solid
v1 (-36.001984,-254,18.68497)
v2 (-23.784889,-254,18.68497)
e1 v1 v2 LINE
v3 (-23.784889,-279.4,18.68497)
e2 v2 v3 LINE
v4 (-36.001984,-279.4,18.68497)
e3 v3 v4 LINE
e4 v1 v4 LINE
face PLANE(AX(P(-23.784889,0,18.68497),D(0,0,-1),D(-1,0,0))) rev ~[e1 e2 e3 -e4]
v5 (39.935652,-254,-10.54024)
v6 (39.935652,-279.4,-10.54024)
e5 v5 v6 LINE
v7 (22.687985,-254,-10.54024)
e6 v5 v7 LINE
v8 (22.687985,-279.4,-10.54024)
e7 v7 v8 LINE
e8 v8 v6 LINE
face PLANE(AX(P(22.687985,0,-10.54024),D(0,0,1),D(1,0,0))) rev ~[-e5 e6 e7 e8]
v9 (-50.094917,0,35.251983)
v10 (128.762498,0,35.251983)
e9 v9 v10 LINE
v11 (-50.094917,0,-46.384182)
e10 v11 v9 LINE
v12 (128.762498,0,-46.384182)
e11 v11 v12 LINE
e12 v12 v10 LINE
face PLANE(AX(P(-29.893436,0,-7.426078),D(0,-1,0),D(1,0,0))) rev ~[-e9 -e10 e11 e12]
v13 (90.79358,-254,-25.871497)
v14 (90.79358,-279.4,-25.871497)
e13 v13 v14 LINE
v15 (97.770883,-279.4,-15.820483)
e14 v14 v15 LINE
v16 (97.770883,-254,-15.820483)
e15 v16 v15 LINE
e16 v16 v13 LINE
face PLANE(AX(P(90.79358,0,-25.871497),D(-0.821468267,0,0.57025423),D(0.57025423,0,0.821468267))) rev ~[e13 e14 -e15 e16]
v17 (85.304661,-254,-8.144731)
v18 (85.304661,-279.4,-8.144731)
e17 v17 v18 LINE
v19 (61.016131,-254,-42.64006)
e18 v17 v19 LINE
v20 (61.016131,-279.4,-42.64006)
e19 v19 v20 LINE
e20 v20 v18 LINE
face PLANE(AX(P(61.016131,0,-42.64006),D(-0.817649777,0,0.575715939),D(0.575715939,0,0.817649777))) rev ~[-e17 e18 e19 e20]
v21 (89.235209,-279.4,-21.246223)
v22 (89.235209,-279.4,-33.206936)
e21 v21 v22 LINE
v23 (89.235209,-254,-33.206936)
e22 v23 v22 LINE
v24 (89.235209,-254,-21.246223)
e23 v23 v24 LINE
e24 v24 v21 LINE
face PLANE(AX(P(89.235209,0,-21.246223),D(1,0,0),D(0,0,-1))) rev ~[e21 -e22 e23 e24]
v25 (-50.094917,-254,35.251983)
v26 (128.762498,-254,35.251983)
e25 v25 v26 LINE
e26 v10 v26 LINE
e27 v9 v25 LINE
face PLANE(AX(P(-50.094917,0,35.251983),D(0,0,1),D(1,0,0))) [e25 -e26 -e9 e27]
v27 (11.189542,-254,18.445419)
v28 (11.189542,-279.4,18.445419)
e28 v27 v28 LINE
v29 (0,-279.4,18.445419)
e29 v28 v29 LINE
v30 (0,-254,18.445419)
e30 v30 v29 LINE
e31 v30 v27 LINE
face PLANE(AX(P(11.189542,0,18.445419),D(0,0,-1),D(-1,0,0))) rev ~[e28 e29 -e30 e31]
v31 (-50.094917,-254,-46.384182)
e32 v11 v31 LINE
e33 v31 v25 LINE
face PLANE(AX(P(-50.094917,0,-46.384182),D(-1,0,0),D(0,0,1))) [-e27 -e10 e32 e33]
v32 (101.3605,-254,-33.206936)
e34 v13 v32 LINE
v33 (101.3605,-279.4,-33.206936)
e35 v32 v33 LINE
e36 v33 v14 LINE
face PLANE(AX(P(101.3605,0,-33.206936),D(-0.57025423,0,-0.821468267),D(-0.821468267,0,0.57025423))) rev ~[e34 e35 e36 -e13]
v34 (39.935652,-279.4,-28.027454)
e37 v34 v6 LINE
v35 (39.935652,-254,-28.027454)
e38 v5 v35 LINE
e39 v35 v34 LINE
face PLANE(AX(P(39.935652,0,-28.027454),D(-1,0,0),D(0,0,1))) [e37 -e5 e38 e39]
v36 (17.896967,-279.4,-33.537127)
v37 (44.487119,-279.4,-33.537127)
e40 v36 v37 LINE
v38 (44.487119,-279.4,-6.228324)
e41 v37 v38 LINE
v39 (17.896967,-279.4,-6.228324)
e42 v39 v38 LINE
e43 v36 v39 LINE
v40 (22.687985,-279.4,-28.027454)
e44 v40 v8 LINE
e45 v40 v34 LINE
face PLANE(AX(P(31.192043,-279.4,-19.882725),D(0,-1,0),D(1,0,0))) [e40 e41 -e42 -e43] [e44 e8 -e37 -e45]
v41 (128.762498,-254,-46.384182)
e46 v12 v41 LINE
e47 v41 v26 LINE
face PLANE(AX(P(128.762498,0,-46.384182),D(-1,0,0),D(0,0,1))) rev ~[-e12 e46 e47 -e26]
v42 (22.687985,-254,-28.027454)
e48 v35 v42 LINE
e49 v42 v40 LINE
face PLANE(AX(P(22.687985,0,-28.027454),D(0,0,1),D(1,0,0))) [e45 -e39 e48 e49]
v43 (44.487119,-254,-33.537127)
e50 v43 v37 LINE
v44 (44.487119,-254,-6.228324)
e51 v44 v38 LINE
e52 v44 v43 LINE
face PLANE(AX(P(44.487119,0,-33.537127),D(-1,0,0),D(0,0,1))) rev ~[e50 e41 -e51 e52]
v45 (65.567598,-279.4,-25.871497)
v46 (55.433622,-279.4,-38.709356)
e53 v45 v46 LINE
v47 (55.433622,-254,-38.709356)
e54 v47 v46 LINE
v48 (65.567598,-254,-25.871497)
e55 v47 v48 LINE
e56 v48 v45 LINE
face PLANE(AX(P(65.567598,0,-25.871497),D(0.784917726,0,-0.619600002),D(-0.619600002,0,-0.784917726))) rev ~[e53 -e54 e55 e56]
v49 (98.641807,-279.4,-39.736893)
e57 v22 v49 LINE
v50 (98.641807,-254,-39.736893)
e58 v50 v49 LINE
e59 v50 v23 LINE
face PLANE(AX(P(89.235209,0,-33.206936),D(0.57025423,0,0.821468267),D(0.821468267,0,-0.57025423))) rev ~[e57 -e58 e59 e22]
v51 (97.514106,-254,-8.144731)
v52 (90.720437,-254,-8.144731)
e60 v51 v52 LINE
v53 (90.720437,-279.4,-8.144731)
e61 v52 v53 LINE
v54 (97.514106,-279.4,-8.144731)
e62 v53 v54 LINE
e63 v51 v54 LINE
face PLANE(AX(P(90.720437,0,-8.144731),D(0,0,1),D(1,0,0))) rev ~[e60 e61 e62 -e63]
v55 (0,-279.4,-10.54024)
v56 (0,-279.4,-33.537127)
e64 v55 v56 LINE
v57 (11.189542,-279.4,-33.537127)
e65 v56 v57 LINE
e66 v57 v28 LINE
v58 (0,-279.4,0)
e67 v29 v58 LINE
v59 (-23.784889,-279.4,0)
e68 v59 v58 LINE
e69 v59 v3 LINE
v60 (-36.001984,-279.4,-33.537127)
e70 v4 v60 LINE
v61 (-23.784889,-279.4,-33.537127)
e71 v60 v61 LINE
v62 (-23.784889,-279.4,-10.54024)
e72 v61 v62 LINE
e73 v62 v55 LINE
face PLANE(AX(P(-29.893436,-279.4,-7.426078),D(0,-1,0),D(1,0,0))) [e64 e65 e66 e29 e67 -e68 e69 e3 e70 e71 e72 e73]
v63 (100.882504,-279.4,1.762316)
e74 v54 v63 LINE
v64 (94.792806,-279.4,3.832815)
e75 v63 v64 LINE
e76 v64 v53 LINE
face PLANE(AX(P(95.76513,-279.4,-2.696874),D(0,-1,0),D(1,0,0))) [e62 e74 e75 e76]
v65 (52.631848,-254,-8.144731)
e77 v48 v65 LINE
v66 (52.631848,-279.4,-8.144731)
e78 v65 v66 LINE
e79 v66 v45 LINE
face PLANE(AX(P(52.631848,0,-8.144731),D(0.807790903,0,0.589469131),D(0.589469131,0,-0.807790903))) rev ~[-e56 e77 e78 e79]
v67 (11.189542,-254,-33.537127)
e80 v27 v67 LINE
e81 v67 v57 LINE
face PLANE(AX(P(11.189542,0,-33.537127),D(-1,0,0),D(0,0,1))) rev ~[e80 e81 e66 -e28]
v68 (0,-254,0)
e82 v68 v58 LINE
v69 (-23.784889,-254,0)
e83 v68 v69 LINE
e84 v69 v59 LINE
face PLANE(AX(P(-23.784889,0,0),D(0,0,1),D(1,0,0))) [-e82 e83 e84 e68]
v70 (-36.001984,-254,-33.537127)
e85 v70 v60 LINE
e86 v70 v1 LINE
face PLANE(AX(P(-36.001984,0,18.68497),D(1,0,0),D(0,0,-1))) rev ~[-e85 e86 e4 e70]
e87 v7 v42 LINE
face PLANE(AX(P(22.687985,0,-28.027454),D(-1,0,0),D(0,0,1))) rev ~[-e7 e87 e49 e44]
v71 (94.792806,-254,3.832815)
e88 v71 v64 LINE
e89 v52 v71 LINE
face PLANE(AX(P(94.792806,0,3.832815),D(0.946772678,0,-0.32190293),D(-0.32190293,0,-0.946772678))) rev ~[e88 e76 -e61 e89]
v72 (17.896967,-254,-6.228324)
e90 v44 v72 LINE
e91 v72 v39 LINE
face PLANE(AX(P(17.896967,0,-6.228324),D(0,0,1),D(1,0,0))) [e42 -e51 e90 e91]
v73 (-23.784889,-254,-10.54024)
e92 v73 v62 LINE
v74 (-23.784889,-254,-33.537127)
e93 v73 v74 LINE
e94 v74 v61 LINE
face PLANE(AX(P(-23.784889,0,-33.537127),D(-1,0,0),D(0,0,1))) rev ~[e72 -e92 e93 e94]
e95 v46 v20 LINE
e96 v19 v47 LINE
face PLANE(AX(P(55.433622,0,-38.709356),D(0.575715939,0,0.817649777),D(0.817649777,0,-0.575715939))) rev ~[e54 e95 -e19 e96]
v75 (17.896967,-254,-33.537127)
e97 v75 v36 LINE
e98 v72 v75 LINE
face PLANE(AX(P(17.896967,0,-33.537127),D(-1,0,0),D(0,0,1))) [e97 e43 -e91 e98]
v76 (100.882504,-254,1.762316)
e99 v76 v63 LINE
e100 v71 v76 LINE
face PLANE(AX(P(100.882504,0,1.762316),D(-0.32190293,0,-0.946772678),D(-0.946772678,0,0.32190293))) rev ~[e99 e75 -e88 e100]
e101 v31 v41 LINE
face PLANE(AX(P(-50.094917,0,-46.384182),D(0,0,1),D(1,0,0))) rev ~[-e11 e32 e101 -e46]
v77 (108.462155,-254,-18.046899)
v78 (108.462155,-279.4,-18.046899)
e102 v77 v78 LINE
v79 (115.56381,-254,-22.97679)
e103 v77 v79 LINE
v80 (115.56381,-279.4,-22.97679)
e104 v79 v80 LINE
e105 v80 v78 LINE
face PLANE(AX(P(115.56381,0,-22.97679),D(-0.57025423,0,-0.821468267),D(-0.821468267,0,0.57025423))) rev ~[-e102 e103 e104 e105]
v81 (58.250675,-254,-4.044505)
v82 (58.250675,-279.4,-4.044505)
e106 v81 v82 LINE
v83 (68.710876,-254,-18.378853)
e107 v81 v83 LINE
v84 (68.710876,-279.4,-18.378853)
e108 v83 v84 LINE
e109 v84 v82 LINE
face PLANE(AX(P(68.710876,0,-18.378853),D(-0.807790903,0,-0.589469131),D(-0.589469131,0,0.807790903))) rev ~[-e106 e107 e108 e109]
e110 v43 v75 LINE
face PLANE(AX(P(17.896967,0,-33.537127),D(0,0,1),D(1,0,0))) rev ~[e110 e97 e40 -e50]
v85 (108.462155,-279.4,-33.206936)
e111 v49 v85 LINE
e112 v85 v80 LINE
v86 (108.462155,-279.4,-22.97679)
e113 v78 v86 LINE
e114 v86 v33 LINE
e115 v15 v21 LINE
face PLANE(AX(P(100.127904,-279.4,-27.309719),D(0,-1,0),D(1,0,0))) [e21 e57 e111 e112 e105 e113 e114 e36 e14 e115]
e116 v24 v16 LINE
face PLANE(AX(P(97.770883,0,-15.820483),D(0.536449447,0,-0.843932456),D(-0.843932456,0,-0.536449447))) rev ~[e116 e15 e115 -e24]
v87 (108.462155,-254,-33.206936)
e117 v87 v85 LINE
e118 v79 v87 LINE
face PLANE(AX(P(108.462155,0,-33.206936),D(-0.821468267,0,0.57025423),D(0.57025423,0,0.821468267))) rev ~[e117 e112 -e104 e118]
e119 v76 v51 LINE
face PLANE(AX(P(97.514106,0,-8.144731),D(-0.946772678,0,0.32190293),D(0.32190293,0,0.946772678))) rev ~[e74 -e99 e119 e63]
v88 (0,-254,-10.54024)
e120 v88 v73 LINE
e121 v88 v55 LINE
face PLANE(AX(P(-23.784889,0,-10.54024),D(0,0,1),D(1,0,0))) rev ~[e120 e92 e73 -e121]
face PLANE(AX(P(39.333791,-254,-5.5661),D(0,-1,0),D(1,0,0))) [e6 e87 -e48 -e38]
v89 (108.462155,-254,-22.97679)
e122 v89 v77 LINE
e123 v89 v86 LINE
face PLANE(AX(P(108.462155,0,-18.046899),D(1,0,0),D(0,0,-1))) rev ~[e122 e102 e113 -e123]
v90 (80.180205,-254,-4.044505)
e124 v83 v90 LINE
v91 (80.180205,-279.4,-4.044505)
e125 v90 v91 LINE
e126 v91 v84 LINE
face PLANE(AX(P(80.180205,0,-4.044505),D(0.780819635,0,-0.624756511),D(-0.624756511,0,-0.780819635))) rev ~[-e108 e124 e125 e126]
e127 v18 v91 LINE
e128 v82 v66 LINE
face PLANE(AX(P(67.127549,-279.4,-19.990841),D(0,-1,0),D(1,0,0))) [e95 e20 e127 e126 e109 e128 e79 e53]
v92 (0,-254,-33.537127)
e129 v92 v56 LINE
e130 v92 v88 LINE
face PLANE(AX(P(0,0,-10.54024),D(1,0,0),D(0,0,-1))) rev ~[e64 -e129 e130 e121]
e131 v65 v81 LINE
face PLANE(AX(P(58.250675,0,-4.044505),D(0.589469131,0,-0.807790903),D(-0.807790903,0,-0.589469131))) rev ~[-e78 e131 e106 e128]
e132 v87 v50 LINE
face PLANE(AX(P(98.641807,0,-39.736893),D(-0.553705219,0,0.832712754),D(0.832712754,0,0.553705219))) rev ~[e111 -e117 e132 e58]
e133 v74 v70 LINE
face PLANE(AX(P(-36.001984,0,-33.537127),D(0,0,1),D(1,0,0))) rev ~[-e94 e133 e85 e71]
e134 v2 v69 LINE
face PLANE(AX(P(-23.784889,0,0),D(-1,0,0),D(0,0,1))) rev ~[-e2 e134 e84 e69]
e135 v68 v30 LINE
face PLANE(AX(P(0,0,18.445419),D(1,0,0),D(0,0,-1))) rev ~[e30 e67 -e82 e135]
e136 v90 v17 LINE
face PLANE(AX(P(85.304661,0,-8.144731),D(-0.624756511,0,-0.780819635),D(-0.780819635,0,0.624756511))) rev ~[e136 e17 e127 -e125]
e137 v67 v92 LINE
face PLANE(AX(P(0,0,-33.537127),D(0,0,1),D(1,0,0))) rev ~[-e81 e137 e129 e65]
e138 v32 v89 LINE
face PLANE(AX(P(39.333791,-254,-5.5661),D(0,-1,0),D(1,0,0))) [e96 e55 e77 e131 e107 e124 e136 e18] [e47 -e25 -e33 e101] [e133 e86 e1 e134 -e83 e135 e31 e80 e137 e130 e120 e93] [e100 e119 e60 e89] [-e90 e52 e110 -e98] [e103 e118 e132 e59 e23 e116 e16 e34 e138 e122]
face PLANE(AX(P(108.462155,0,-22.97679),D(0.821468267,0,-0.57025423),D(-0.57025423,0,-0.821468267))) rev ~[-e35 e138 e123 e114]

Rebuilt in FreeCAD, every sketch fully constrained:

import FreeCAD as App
import Part
import Sketcher

V = App.Vector
Q = App.Units.Quantity


def add_polygon(sketch, points):
    """Adds a closed chain of lines whose ends are joined by coincident constraints."""
    first, n = sketch.GeometryCount, len(points)
    for a, b in zip(points, points[1:] + points[:1]):
        sketch.addGeometry(Part.LineSegment(App.Vector(*a, 0), App.Vector(*b, 0)), False)
    for i in range(n):
        sketch.addConstraint(Sketcher.Constraint("Coincident", first + i, 2, first + (i + 1) % n, 1))

doc = App.newDocument("Part")
params = doc.addObject("Spreadsheet::Sheet", "Params")
for row, (alias, value) in enumerate([
    ("pad1_length", "10 in"),
    ("pad2_length", "11 in"),
], start=1):
    params.set(f"A{row}", alias)
    params.set(f"B{row}", "=" + value)
    params.setAlias(f"B{row}", alias)

body = doc.addObject("PartDesign::Body", "Body")

sketch1 = body.newObject("Sketcher::SketchObject", "Sketch")
sketch1.AttachmentSupport = (doc.getObject("XZ_Plane"), [""])
sketch1.MapMode = "FlatFace"
add_polygon(sketch1, [(-50, 35), (-50, -46), (129, -46), (129, 35)])
sketch1.addConstraint(Sketcher.Constraint("Vertical", 0))
sketch1.addConstraint(Sketcher.Constraint("Horizontal", 1))
sketch1.addConstraint(Sketcher.Constraint("Vertical", 2))
sketch1.addConstraint(Sketcher.Constraint("Horizontal", 3))
sketch1.addConstraint(Sketcher.Constraint("DistanceX", -1, 1, 1, 2, Q("128.762498 mm")))
sketch1.addConstraint(Sketcher.Constraint("DistanceX", 1, 1, 1, 2, Q("178.857416 mm")))
sketch1.addConstraint(Sketcher.Constraint("DistanceY", 0, 2, 0, 1, Q("81.636164 mm")))
sketch1.addConstraint(Sketcher.Constraint("DistanceY", 0, 2, -1, 1, Q("46.384182 mm")))
pad1 = body.newObject("PartDesign::Pad", "Pad")
pad1.Profile = sketch1
pad1.setExpression("Length", "Params.pad1_length")

sketch2 = body.newObject("Sketcher::SketchObject", "Sketch001")
sketch2.AttachmentSupport = (doc.getObject("XZ_Plane"), [""])
sketch2.MapMode = "FlatFace"
add_polygon(sketch2, [(-23.8, 18.7), (-36, 18.7), (-36, -33.5), (-23.8, -33.5), (-23.8, -10.5), (0, -10.5), (0, -33.5), (11.2, -33.5), (11.2, 18.4), (0, 18.4), (0, 0), (-23.8, 0)])
add_polygon(sketch2, [(17.9, -6.2), (17.9, -33.5), (44.5, -33.5), (44.5, -6.2)])
add_polygon(sketch2, [(39.9, -28), (22.7, -28), (22.7, -10.5), (39.9, -10.5)])
add_polygon(sketch2, [(58.3, -4), (52.6, -8.1), (65.6, -25.9), (55.4, -38.7), (61, -42.6), (85.3, -8.1), (80.2, -4), (68.7, -18.4)])
add_polygon(sketch2, [(100.9, 1.8), (94.8, 3.8), (90.7, -8.1), (97.5, -8.1)])
add_polygon(sketch2, [(97.8, -15.8), (89.2, -21.2), (89.2, -33.2), (98.6, -39.7), (108.5, -33.2), (115.6, -23), (108.5, -18), (108.5, -23), (101.4, -33.2), (90.8, -25.9)])
sketch2.addConstraint(Sketcher.Constraint("Horizontal", 0))
sketch2.addConstraint(Sketcher.Constraint("Vertical", 1))
sketch2.addConstraint(Sketcher.Constraint("Horizontal", 2))
sketch2.addConstraint(Sketcher.Constraint("Vertical", 3))
sketch2.addConstraint(Sketcher.Constraint("Horizontal", 4))
sketch2.addConstraint(Sketcher.Constraint("Vertical", 5))
sketch2.addConstraint(Sketcher.Constraint("Horizontal", 6))
sketch2.addConstraint(Sketcher.Constraint("Vertical", 7))
sketch2.addConstraint(Sketcher.Constraint("Horizontal", 8))
sketch2.addConstraint(Sketcher.Constraint("Vertical", 9))
sketch2.addConstraint(Sketcher.Constraint("Horizontal", 10))
sketch2.addConstraint(Sketcher.Constraint("Vertical", 11))
sketch2.addConstraint(Sketcher.Constraint("Vertical", 12))
sketch2.addConstraint(Sketcher.Constraint("Horizontal", 13))
sketch2.addConstraint(Sketcher.Constraint("Vertical", 14))
sketch2.addConstraint(Sketcher.Constraint("Horizontal", 15))
sketch2.addConstraint(Sketcher.Constraint("Horizontal", 16))
sketch2.addConstraint(Sketcher.Constraint("Vertical", 17))
sketch2.addConstraint(Sketcher.Constraint("Horizontal", 18))
sketch2.addConstraint(Sketcher.Constraint("Vertical", 19))
sketch2.addConstraint(Sketcher.Constraint("Horizontal", 30))
sketch2.addConstraint(Sketcher.Constraint("Vertical", 33))
sketch2.addConstraint(Sketcher.Constraint("Vertical", 38))
sketch2.addConstraint(Sketcher.Constraint("Coincident", 9, 2, -1, 1))
sketch2.addConstraint(Sketcher.Constraint("PointOnObject", 4, 2, -2))
sketch2.addConstraint(Sketcher.Constraint("Perpendicular", 20, 21))
sketch2.addConstraint(Sketcher.Constraint("Perpendicular", 23, 24))
sketch2.addConstraint(Sketcher.Constraint("Perpendicular", 25, 26))
sketch2.addConstraint(Sketcher.Constraint("Parallel", 21, 27))
sketch2.addConstraint(Sketcher.Constraint("Perpendicular", 28, 29))
sketch2.addConstraint(Sketcher.Constraint("Parallel", 29, 31))
sketch2.addConstraint(Sketcher.Constraint("Perpendicular", 34, 36))
sketch2.addConstraint(Sketcher.Constraint("Perpendicular", 36, 37))
sketch2.addConstraint(Sketcher.Constraint("Perpendicular", 37, 39))
sketch2.addConstraint(Sketcher.Constraint("Perpendicular", 39, 40))
sketch2.addConstraint(Sketcher.Constraint("Perpendicular", 40, 41))
sketch2.addConstraint(Sketcher.Constraint("Horizontal", 2, 2, 5, 2))
sketch2.addConstraint(Sketcher.Constraint("Horizontal", 6, 2, 12, 2))
sketch2.addConstraint(Sketcher.Constraint("Horizontal", 4, 2, 17, 2))
sketch2.addConstraint(Sketcher.Constraint("Horizontal", 20, 2, 24, 2))
sketch2.addConstraint(Sketcher.Constraint("Horizontal", 25, 2, 27, 2))
sketch2.addConstraint(Sketcher.Constraint("Horizontal", 24, 2, 29, 2))
sketch2.addConstraint(Sketcher.Constraint("Horizontal", 33, 2, 35, 2))
sketch2.addConstraint(Sketcher.Constraint("Horizontal", 36, 2, 38, 2))
sketch2.addConstraint(Sketcher.Constraint("Horizontal", 35, 2, 39, 2))
sketch2.addConstraint(Sketcher.Constraint("Horizontal", 21, 2, 40, 2))
sketch2.addConstraint(Sketcher.Constraint("Vertical", 3, 2, 10, 2))
sketch2.addConstraint(Sketcher.Constraint("Vertical", 35, 2, 37, 2))
sketch2.addConstraint(Sketcher.Constraint("Distance", 35, Q("11.7932 mm")))
sketch2.addConstraint(Sketcher.Constraint("DistanceX", 4, 1, 4, 2, Q("23.784889 mm")))
sketch2.addConstraint(Sketcher.Constraint("DistanceX", 6, 1, 6, 2, Q("11.189542 mm")))
sketch2.addConstraint(Sketcher.Constraint("DistanceX", 13, 1, 13, 2, Q("26.590152 mm")))
sketch2.addConstraint(Sketcher.Constraint("DistanceX", 30, 1, 30, 2, Q("6.793668 mm")))
sketch2.addConstraint(Sketcher.Constraint("DistanceY", 9, 2, 9, 1, Q("18.445419 mm")))
sketch2.addConstraint(Sketcher.Constraint("DistanceY", 11, 1, 11, 2, Q("18.68497 mm")))
sketch2.addConstraint(Sketcher.Constraint("DistanceY", 38, 2, 38, 1, Q("4.929891 mm")))
sketch2.addConstraint(Sketcher.Constraint("DistanceY", 37, 2, -1, 1, Q("18.046899 mm")))
sketch2.addConstraint(Sketcher.Constraint("DistanceX", -1, 1, 39, 2, Q("101.3605 mm")))
sketch2.addConstraint(Sketcher.Constraint("DistanceY", 22, 2, 19, 2, Q("10.681901 mm")))
sketch2.addConstraint(Sketcher.Constraint("DistanceX", 27, 2, 26, 2, Q("10.460202 mm")))
sketch2.addConstraint(Sketcher.Constraint("DistanceX", 25, 2, 28, 2, Q("14.6126 mm")))
sketch2.addConstraint(Sketcher.Constraint("DistanceX", 28, 2, 30, 2, Q("2.7213 mm")))
sketch2.addConstraint(Sketcher.Constraint("DistanceX", 28, 2, 31, 2, Q("6.089698 mm")))
sketch2.addConstraint(Sketcher.Constraint("DistanceX", 30, 2, 34, 2, Q("1.127701 mm")))
sketch2.addConstraint(Sketcher.Constraint("DistanceX", 32, 2, 36, 2, Q("26.328601 mm")))
sketch2.addConstraint(Sketcher.Constraint("Distance", 25, Q("6.562918 mm")))
sketch2.addConstraint(Sketcher.Constraint("Distance", 26, Q("18.358078 mm")))
sketch2.addConstraint(Sketcher.Constraint("Distance", 27, Q("17.745122 mm")))
sketch2.addConstraint(Sketcher.Constraint("Distance", 36, Q("12.453489 mm")))
sketch2.addConstraint(Sketcher.Constraint("DistanceX", 0, 2, 0, 1, Q("12.217095 mm")))
sketch2.addConstraint(Sketcher.Constraint("DistanceX", 16, 2, 16, 1, Q("17.247668 mm")))
sketch2.addConstraint(Sketcher.Constraint("DistanceY", 1, 2, 1, 1, Q("52.222097 mm")))
sketch2.addConstraint(Sketcher.Constraint("DistanceY", 3, 1, 3, 2, Q("22.996887 mm")))
sketch2.addConstraint(Sketcher.Constraint("DistanceY", 12, 2, 12, 1, Q("27.308804 mm")))
sketch2.addConstraint(Sketcher.Constraint("DistanceY", 17, 1, 17, 2, Q("17.487214 mm")))
sketch2.addConstraint(Sketcher.Constraint("DistanceY", 33, 2, 33, 1, Q("11.960713 mm")))
sketch2.addConstraint(Sketcher.Constraint("DistanceX", -1, 1, 13, 2, Q("44.487119 mm")))
sketch2.addConstraint(Sketcher.Constraint("DistanceY", 20, 2, -1, 1, Q("8.144731 mm")))
sketch2.addConstraint(Sketcher.Constraint("DistanceX", -1, 1, 22, 2, Q("55.433622 mm")))
sketch2.addConstraint(Sketcher.Constraint("DistanceX", -1, 1, 23, 2, Q("61.016131 mm")))
sketch2.addConstraint(Sketcher.Constraint("DistanceX", -1, 1, 40, 2, Q("90.79358 mm")))
sketch2.addConstraint(Sketcher.Constraint("DistanceX", 19, 2, 22, 2, Q("15.49797 mm")))
sketch2.addConstraint(Sketcher.Constraint("DistanceY", 32, 2, 41, 2, Q("5.42574 mm")))
pad2 = body.newObject("PartDesign::Pad", "Pad001")
pad2.Profile = sketch2
pad2.setExpression("Length", "Params.pad2_length")

doc.recompute()
